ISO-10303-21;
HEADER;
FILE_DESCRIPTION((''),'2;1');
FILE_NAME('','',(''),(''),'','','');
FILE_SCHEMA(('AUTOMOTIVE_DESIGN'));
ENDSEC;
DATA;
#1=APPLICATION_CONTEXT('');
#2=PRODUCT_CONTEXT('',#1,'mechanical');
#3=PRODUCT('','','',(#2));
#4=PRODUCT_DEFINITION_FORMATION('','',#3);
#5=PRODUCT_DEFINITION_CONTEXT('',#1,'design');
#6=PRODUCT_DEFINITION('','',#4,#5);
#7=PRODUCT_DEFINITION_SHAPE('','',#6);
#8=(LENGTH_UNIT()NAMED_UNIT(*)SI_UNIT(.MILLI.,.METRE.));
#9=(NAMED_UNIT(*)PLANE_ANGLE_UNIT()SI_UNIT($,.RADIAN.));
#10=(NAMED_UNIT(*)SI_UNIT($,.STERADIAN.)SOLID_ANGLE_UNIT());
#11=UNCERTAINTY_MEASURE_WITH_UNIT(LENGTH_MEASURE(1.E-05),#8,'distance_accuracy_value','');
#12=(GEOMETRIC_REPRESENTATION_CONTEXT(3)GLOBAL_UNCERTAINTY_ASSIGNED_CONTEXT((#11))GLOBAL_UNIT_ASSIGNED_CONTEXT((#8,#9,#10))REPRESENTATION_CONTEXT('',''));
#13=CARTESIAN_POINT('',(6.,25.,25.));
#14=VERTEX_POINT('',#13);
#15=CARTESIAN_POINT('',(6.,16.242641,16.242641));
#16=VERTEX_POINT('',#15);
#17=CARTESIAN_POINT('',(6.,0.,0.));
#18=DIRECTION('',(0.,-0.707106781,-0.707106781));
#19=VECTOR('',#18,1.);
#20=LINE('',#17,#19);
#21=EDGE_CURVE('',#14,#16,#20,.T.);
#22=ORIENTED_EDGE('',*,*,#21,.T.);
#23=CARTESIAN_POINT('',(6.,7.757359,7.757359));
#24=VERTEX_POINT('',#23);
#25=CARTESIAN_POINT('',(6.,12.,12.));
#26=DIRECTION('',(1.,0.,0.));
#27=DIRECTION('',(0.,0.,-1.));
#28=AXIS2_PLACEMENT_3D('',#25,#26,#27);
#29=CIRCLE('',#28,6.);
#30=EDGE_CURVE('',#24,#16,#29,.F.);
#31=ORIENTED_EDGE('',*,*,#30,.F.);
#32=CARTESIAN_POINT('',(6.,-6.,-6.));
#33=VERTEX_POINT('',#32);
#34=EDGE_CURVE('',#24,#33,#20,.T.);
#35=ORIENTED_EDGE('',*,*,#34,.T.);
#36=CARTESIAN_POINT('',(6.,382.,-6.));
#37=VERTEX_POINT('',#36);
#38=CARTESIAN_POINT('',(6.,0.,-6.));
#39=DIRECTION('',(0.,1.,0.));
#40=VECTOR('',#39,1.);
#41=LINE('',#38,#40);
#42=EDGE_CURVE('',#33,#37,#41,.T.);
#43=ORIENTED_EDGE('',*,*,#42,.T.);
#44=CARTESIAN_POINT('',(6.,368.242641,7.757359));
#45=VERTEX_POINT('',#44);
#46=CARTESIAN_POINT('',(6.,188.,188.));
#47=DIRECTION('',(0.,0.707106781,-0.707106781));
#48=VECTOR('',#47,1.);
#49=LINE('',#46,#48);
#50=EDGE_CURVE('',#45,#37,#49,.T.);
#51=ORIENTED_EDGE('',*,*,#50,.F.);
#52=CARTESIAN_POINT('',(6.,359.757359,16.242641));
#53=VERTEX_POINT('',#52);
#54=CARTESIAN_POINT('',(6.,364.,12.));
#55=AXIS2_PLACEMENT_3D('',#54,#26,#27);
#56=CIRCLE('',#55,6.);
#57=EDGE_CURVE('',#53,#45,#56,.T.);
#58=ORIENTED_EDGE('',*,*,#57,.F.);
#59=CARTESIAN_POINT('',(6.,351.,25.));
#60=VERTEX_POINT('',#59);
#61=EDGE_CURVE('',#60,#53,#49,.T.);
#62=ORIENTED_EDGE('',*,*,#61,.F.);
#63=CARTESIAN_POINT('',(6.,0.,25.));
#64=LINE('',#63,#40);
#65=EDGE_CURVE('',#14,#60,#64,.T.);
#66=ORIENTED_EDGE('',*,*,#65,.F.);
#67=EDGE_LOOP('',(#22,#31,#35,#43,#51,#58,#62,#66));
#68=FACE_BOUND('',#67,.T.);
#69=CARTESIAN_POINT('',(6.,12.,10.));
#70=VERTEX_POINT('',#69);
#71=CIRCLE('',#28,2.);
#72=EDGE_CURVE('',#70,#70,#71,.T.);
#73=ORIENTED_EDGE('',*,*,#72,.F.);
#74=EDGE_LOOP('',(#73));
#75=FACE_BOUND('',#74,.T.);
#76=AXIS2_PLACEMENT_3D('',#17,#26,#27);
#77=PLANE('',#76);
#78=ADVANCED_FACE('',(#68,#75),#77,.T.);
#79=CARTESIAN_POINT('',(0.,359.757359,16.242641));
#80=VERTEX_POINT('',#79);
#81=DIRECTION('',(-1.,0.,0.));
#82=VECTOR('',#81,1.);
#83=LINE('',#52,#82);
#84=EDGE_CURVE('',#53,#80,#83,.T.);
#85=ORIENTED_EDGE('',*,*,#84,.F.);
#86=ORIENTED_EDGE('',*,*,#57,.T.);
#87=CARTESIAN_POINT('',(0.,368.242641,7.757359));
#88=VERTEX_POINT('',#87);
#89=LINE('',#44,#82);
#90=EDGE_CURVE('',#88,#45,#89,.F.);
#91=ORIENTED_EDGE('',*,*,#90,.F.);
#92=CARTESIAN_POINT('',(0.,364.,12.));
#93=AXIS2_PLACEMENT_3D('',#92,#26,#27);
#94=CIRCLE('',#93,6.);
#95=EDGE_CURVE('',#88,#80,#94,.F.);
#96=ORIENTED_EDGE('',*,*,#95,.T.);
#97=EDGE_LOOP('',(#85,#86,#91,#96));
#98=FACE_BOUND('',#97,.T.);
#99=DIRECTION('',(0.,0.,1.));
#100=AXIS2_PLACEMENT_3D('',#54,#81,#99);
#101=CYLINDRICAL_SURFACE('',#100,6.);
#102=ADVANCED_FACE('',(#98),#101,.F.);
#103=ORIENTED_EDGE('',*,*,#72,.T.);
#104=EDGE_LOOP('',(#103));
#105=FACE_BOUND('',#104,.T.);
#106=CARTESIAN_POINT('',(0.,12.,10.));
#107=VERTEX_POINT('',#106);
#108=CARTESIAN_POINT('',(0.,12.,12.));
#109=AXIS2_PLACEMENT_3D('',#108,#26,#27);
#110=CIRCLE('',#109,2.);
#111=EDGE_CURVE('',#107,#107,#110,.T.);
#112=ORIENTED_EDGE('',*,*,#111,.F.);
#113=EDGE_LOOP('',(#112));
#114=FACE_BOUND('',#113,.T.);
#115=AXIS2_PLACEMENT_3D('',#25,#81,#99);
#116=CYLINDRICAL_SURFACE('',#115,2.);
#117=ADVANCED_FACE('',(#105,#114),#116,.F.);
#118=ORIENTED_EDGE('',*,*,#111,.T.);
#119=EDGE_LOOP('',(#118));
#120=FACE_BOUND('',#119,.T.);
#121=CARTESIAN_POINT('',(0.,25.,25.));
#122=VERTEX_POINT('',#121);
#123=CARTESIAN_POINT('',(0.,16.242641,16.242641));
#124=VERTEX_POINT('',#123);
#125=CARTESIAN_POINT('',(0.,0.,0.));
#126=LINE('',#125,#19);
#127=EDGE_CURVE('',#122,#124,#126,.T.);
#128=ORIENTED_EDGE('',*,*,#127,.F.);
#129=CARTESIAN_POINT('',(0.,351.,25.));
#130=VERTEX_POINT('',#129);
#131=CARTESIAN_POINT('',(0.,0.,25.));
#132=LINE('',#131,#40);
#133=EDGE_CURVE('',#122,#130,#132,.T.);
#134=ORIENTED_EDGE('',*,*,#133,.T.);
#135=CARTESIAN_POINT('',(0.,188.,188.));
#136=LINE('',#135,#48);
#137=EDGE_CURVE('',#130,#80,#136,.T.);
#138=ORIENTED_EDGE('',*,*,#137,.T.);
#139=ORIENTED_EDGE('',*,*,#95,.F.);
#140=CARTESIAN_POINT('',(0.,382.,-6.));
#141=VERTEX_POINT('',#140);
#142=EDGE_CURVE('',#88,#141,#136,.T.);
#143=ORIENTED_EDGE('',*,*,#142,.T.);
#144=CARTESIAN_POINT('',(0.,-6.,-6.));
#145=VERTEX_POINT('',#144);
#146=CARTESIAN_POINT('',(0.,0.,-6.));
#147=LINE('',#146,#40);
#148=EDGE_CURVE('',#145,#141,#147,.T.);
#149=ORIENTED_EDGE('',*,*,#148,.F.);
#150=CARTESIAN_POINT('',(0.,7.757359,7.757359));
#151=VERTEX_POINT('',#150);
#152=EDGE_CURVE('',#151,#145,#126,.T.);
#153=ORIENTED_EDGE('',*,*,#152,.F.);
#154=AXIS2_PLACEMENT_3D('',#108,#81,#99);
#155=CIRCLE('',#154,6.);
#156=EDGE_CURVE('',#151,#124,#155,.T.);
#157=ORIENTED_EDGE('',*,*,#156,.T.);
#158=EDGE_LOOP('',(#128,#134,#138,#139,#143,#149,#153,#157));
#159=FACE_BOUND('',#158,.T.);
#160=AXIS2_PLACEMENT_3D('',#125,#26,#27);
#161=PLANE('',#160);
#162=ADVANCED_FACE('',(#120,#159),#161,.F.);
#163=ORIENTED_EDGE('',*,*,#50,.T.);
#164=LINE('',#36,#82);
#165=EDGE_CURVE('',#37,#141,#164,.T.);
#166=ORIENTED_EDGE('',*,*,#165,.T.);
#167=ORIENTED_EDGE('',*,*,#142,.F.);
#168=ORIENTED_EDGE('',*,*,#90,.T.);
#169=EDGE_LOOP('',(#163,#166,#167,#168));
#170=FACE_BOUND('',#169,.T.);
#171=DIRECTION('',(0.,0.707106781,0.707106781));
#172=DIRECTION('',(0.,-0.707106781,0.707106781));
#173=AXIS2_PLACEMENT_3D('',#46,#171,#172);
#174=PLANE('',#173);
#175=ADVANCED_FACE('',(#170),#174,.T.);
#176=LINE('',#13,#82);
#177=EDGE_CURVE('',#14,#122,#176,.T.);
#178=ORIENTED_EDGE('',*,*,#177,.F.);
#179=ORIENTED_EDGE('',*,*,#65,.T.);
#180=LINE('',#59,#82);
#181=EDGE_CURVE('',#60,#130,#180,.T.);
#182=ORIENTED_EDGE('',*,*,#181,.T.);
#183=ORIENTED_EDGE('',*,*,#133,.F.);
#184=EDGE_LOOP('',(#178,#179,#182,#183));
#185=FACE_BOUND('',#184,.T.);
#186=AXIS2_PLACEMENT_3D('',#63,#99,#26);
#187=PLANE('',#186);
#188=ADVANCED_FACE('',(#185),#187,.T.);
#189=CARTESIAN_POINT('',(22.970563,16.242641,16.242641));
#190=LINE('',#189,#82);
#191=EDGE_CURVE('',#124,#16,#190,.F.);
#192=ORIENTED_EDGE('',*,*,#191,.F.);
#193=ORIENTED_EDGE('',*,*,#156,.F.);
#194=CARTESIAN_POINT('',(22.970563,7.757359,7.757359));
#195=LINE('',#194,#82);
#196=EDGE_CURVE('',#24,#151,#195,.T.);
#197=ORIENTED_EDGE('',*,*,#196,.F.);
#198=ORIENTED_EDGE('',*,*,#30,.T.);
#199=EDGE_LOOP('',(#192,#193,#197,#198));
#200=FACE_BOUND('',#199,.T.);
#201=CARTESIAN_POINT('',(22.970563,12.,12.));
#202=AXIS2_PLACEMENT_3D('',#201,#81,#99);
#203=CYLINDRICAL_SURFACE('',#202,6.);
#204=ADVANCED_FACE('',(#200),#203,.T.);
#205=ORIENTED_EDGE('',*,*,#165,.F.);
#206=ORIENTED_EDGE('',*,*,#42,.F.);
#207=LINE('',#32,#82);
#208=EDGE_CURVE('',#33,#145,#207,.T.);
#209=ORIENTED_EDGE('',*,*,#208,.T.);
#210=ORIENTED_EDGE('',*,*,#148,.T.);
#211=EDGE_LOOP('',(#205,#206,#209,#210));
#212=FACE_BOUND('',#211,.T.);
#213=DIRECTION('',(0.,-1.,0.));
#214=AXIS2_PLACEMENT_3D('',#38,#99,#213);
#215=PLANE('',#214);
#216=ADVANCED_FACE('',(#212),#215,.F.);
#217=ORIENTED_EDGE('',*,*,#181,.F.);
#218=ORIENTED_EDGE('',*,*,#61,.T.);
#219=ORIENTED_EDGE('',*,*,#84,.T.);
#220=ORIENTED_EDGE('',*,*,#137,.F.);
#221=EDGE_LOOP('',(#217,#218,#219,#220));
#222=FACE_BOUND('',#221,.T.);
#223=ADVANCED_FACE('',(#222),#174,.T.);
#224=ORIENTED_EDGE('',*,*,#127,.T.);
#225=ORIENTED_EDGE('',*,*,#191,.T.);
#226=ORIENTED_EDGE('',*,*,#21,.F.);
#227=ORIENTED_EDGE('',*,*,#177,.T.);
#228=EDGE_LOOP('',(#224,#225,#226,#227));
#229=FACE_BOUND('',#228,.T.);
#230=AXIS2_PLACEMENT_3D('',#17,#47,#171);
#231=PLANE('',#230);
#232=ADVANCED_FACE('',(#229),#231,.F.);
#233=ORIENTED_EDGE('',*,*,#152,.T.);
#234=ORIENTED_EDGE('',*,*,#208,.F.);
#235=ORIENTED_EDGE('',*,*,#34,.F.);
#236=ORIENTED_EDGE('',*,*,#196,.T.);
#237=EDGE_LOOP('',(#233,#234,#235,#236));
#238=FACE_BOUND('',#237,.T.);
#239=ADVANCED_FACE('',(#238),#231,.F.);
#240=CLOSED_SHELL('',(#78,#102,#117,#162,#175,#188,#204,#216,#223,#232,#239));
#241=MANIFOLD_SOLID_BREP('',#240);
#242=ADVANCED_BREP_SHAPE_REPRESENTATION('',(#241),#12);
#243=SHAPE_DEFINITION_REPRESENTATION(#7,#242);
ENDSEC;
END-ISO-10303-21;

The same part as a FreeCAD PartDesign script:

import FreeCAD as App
import Part
import Sketcher
Q = App.Units.Quantity

doc = App.newDocument("Part")
body = doc.addObject("PartDesign::Body", "Body")

# Sketch on YZ plane
sketch1 = doc.addObject("Sketcher::SketchObject", "Sketch")
body.addObject(sketch1)
sketch1.AttachmentSupport = (doc.YZ_Plane, [""])
sketch1.MapMode = "FlatFace"
sketch1.addGeometry(Part.LineSegment(App.Vector(382, -6, 0), App.Vector(351, 25, 0)), False)
sketch1.addGeometry(Part.LineSegment(App.Vector(351, 25, 0), App.Vector(25, 25, 0)), False)
sketch1.addGeometry(Part.LineSegment(App.Vector(25, 25, 0), App.Vector(-6, -6, 0)), False)
sketch1.addGeometry(Part.LineSegment(App.Vector(-6, -6, 0), App.Vector(382, -6, 0)), False)
sketch1.addConstraint(Sketcher.Constraint("Coincident", 0, 2, 1, 1))
sketch1.addConstraint(Sketcher.Constraint("Coincident", 1, 2, 2, 1))
sketch1.addConstraint(Sketcher.Constraint("Coincident", 2, 2, 3, 1))
sketch1.addConstraint(Sketcher.Constraint("Coincident", 3, 2, 0, 1))
sketch1.addConstraint(Sketcher.Constraint("Horizontal", 1))
sketch1.addConstraint(Sketcher.Constraint("Horizontal", 3))
sketch1.addConstraint(Sketcher.Constraint("Perpendicular", 0, 2))
sketch1.addConstraint(Sketcher.Constraint("Equal", 0, 2))
sketch1.addConstraint(Sketcher.Constraint("DistanceX", 1, 2, 1, 1, Q("326 mm")))
sketch1.addConstraint(Sketcher.Constraint("DistanceX", 3, 1, 3, 2, Q("388 mm")))
sketch1.addConstraint(Sketcher.Constraint("DistanceX", -1, 1, 0, 2, Q("351 mm")))
sketch1.addConstraint(Sketcher.Constraint("DistanceY", -1, 1, 0, 2, Q("25 mm")))
pad1 = doc.addObject("PartDesign::Pad", "Pad")
body.addObject(pad1)
pad1.Profile = sketch1
pad1.Length = 6

# Sketch on YZ plane
sketch2 = doc.addObject("Sketcher::SketchObject", "Sketch001")
body.addObject(sketch2)
sketch2.AttachmentSupport = (doc.YZ_Plane, [""])
sketch2.MapMode = "FlatFace"
sketch2.addGeometry(Part.Circle(App.Vector(12, 12, 0), App.Vector(0, 0, 1), 6), False)
sketch2.addConstraint(Sketcher.Constraint("Diameter", 0, Q("12 mm")))
sketch2.addConstraint(Sketcher.Constraint("DistanceX", -1, 1, 0, 3, Q("12 mm")))
sketch2.addConstraint(Sketcher.Constraint("DistanceY", -1, 1, 0, 3, Q("12 mm")))
pad2 = doc.addObject("PartDesign::Pad", "Pad001")
body.addObject(pad2)
pad2.Profile = sketch2
pad2.Length = 6

# Sketch on YZ plane
sketch3 = doc.addObject("Sketcher::SketchObject", "Sketch002")
body.addObject(sketch3)
sketch3.AttachmentSupport = (doc.YZ_Plane, [""])
sketch3.MapMode = "FlatFace"
sketch3.addGeometry(Part.Circle(App.Vector(364, 12, 0), App.Vector(0, 0, 1), 6), False)
sketch3.addGeometry(Part.Circle(App.Vector(12, 12, 0), App.Vector(0, 0, 1), 2), False)
sketch3.addConstraint(Sketcher.Constraint("Horizontal", 0, 3, 1, 3))
sketch3.addConstraint(Sketcher.Constraint("Diameter", 0, Q("12 mm")))
sketch3.addConstraint(Sketcher.Constraint("Diameter", 1, Q("4 mm")))
sketch3.addConstraint(Sketcher.Constraint("DistanceX", -1, 1, 0, 3, Q("364 mm")))
sketch3.addConstraint(Sketcher.Constraint("DistanceY", -1, 1, 0, 3, Q("12 mm")))
sketch3.addConstraint(Sketcher.Constraint("DistanceX", -1, 1, 1, 3, Q("12 mm")))
pocket1 = doc.addObject("PartDesign::Pocket", "Pocket")
body.addObject(pocket1)
pocket1.Profile = sketch3
pocket1.Type = "ThroughAll"
pocket1.Reversed = True

doc.recompute()
